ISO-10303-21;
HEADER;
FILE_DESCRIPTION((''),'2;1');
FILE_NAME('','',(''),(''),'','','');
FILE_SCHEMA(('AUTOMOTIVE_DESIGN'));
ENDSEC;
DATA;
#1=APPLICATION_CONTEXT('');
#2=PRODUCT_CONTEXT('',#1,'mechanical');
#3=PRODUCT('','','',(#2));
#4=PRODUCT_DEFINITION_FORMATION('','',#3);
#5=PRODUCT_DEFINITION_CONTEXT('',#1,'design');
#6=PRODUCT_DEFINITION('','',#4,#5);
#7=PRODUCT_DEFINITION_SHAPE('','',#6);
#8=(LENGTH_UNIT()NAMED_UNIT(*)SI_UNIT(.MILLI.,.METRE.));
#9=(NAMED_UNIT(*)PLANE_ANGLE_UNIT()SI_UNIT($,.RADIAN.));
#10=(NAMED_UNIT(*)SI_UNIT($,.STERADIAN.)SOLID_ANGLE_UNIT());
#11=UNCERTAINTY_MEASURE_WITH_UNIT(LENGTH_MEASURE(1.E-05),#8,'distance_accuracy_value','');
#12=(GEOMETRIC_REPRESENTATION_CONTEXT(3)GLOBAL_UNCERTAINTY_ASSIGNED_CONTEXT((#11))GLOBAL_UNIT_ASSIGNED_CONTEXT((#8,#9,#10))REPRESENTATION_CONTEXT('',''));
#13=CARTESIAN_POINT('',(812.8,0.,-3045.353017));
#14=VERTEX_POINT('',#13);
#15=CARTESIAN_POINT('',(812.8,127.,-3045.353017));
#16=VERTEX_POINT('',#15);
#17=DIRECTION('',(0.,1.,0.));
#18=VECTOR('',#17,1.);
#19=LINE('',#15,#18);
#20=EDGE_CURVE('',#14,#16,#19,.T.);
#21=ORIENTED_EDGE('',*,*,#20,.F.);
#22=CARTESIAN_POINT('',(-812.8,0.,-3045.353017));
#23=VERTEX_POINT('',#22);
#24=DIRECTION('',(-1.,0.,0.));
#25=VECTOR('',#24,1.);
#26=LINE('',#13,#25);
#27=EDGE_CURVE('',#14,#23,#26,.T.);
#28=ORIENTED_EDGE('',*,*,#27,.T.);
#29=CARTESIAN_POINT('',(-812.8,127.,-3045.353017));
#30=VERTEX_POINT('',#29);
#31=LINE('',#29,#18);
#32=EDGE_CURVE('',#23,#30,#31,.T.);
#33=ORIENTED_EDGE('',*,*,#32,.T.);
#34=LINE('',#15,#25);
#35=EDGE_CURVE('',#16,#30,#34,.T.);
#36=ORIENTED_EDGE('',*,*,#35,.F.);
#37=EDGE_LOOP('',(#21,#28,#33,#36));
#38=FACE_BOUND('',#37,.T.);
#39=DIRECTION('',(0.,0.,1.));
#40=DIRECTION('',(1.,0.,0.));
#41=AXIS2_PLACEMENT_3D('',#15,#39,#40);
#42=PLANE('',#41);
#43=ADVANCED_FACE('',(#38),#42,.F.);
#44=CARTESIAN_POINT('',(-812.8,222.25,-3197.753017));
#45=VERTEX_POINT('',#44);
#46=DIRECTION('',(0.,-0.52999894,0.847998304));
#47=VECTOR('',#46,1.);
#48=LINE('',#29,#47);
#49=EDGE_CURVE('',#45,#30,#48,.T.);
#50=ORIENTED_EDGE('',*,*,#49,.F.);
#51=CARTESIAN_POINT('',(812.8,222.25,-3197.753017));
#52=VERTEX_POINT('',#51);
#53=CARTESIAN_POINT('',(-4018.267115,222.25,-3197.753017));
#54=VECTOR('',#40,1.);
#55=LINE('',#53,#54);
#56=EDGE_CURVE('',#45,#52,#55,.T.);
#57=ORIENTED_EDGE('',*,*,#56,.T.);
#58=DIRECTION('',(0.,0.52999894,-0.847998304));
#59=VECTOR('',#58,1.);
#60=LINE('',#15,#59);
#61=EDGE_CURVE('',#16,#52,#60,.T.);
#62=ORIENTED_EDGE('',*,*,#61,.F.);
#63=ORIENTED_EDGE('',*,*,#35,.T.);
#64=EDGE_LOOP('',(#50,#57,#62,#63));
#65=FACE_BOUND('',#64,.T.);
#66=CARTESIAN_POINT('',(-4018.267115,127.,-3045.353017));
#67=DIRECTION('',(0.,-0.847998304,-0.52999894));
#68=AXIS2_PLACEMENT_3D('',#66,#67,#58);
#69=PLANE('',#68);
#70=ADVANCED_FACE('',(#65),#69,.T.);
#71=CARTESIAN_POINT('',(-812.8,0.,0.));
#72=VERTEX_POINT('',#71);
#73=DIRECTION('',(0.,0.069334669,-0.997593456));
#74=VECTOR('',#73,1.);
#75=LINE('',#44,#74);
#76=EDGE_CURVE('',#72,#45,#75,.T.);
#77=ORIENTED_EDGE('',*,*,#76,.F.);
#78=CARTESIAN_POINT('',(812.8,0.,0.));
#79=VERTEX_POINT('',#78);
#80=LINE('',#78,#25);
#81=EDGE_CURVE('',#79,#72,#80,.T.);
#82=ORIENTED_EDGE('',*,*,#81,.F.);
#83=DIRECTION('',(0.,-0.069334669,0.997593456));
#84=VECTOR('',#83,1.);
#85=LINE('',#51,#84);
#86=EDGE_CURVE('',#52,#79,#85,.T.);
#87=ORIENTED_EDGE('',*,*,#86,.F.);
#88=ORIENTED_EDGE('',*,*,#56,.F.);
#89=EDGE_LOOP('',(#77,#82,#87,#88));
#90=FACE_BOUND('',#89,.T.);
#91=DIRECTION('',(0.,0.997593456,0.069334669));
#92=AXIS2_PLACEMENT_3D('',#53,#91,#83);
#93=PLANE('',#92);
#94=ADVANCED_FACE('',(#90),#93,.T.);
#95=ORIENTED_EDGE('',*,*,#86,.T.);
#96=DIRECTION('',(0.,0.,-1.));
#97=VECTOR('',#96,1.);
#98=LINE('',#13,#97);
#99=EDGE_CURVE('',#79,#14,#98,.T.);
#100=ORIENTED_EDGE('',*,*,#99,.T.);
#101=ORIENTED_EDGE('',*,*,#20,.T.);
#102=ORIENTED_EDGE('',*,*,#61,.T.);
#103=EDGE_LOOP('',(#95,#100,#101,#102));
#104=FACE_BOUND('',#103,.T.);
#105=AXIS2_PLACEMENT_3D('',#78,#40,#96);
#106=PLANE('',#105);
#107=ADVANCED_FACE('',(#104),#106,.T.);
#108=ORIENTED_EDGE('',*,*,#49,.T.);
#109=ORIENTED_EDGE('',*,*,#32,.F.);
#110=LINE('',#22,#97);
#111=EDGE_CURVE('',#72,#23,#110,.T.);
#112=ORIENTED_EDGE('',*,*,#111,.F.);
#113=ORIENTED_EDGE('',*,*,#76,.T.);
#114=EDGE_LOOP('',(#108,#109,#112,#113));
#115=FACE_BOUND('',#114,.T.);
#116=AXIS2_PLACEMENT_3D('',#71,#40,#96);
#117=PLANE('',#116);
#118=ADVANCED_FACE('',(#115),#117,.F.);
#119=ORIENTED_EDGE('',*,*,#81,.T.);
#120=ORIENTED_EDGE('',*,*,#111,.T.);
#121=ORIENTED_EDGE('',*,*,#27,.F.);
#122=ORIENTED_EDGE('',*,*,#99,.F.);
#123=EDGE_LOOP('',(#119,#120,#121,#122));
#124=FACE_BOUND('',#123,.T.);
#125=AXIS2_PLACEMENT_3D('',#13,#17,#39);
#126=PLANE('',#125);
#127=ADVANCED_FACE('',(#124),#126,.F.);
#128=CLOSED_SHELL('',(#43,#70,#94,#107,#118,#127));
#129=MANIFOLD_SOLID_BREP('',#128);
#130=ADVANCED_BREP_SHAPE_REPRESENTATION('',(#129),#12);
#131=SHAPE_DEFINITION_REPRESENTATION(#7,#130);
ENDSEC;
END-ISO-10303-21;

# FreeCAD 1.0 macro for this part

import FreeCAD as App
import Part
import Sketcher

V = App.Vector
Q = App.Units.Quantity


def add_polygon(sketch, points):
    """Adds a closed chain of lines whose ends are joined by coincident constraints."""
    first, n = sketch.GeometryCount, len(points)
    for a, b in zip(points, points[1:] + points[:1]):
        sketch.addGeometry(Part.LineSegment(App.Vector(*a, 0), App.Vector(*b, 0)), False)
    for i in range(n):
        sketch.addConstraint(Sketcher.Constraint("Coincident", first + i, 2, first + (i + 1) % n, 1))

doc = App.newDocument("Part")
body = doc.addObject("PartDesign::Body", "Body")

sketch1 = body.newObject("Sketcher::SketchObject", "Sketch")
sketch1.AttachmentSupport = (doc.getObject("YZ_Plane"), [""])
sketch1.MapMode = "FlatFace"
add_polygon(sketch1, [(127, -3045.353017), (0, 0), (0, -3045.353017)])
sketch1.addConstraint(Sketcher.Constraint("Vertical", 1))
sketch1.addConstraint(Sketcher.Constraint("Horizontal", 2))
sketch1.addConstraint(Sketcher.Constraint("Coincident", 0, 2, -1, 1))
sketch1.addConstraint(Sketcher.Constraint("DistanceX", 2, 1, 2, 2, Q("5 in")))
sketch1.addConstraint(Sketcher.Constraint("Distance", 0, Q("120 in")))
pad1 = body.newObject("PartDesign::Pad", "Pad")
pad1.Profile = sketch1
pad1.Length = Q("64 in")
pad1.Midplane = True

sketch2 = body.newObject("Sketcher::SketchObject", "Sketch001")
sketch2.AttachmentSupport = (doc.getObject("YZ_Plane"), [""])
sketch2.MapMode = "FlatFace"
sketch2.AttachmentOffset = App.Placement(V(0, 0, 32 * 25.4), App.Rotation())
add_polygon(sketch2, [(127, -3045.353017), (222.25, -3197.753017), (0, 0)])
sketch2.addConstraint(Sketcher.Constraint("Coincident", 1, 2, -1, 1))
sketch2.addConstraint(Sketcher.Constraint("Distance", 2, Q("120 in")))
sketch2.addConstraint(Sketcher.Constraint("DistanceX", -1, 1, 2, 2, Q("5 in")))
sketch2.addConstraint(Sketcher.Constraint("DistanceY", 0, 2, 2, 2, Q("6 in")))
sketch2.addConstraint(Sketcher.Constraint("DistanceX", -1, 1, 0, 2, Q("8.75 in")))
pad2 = body.newObject("PartDesign::Pad", "Pad001")
pad2.Profile = sketch2
pad2.Length = Q("64 in")
pad2.Reversed = True

doc.recompute()
